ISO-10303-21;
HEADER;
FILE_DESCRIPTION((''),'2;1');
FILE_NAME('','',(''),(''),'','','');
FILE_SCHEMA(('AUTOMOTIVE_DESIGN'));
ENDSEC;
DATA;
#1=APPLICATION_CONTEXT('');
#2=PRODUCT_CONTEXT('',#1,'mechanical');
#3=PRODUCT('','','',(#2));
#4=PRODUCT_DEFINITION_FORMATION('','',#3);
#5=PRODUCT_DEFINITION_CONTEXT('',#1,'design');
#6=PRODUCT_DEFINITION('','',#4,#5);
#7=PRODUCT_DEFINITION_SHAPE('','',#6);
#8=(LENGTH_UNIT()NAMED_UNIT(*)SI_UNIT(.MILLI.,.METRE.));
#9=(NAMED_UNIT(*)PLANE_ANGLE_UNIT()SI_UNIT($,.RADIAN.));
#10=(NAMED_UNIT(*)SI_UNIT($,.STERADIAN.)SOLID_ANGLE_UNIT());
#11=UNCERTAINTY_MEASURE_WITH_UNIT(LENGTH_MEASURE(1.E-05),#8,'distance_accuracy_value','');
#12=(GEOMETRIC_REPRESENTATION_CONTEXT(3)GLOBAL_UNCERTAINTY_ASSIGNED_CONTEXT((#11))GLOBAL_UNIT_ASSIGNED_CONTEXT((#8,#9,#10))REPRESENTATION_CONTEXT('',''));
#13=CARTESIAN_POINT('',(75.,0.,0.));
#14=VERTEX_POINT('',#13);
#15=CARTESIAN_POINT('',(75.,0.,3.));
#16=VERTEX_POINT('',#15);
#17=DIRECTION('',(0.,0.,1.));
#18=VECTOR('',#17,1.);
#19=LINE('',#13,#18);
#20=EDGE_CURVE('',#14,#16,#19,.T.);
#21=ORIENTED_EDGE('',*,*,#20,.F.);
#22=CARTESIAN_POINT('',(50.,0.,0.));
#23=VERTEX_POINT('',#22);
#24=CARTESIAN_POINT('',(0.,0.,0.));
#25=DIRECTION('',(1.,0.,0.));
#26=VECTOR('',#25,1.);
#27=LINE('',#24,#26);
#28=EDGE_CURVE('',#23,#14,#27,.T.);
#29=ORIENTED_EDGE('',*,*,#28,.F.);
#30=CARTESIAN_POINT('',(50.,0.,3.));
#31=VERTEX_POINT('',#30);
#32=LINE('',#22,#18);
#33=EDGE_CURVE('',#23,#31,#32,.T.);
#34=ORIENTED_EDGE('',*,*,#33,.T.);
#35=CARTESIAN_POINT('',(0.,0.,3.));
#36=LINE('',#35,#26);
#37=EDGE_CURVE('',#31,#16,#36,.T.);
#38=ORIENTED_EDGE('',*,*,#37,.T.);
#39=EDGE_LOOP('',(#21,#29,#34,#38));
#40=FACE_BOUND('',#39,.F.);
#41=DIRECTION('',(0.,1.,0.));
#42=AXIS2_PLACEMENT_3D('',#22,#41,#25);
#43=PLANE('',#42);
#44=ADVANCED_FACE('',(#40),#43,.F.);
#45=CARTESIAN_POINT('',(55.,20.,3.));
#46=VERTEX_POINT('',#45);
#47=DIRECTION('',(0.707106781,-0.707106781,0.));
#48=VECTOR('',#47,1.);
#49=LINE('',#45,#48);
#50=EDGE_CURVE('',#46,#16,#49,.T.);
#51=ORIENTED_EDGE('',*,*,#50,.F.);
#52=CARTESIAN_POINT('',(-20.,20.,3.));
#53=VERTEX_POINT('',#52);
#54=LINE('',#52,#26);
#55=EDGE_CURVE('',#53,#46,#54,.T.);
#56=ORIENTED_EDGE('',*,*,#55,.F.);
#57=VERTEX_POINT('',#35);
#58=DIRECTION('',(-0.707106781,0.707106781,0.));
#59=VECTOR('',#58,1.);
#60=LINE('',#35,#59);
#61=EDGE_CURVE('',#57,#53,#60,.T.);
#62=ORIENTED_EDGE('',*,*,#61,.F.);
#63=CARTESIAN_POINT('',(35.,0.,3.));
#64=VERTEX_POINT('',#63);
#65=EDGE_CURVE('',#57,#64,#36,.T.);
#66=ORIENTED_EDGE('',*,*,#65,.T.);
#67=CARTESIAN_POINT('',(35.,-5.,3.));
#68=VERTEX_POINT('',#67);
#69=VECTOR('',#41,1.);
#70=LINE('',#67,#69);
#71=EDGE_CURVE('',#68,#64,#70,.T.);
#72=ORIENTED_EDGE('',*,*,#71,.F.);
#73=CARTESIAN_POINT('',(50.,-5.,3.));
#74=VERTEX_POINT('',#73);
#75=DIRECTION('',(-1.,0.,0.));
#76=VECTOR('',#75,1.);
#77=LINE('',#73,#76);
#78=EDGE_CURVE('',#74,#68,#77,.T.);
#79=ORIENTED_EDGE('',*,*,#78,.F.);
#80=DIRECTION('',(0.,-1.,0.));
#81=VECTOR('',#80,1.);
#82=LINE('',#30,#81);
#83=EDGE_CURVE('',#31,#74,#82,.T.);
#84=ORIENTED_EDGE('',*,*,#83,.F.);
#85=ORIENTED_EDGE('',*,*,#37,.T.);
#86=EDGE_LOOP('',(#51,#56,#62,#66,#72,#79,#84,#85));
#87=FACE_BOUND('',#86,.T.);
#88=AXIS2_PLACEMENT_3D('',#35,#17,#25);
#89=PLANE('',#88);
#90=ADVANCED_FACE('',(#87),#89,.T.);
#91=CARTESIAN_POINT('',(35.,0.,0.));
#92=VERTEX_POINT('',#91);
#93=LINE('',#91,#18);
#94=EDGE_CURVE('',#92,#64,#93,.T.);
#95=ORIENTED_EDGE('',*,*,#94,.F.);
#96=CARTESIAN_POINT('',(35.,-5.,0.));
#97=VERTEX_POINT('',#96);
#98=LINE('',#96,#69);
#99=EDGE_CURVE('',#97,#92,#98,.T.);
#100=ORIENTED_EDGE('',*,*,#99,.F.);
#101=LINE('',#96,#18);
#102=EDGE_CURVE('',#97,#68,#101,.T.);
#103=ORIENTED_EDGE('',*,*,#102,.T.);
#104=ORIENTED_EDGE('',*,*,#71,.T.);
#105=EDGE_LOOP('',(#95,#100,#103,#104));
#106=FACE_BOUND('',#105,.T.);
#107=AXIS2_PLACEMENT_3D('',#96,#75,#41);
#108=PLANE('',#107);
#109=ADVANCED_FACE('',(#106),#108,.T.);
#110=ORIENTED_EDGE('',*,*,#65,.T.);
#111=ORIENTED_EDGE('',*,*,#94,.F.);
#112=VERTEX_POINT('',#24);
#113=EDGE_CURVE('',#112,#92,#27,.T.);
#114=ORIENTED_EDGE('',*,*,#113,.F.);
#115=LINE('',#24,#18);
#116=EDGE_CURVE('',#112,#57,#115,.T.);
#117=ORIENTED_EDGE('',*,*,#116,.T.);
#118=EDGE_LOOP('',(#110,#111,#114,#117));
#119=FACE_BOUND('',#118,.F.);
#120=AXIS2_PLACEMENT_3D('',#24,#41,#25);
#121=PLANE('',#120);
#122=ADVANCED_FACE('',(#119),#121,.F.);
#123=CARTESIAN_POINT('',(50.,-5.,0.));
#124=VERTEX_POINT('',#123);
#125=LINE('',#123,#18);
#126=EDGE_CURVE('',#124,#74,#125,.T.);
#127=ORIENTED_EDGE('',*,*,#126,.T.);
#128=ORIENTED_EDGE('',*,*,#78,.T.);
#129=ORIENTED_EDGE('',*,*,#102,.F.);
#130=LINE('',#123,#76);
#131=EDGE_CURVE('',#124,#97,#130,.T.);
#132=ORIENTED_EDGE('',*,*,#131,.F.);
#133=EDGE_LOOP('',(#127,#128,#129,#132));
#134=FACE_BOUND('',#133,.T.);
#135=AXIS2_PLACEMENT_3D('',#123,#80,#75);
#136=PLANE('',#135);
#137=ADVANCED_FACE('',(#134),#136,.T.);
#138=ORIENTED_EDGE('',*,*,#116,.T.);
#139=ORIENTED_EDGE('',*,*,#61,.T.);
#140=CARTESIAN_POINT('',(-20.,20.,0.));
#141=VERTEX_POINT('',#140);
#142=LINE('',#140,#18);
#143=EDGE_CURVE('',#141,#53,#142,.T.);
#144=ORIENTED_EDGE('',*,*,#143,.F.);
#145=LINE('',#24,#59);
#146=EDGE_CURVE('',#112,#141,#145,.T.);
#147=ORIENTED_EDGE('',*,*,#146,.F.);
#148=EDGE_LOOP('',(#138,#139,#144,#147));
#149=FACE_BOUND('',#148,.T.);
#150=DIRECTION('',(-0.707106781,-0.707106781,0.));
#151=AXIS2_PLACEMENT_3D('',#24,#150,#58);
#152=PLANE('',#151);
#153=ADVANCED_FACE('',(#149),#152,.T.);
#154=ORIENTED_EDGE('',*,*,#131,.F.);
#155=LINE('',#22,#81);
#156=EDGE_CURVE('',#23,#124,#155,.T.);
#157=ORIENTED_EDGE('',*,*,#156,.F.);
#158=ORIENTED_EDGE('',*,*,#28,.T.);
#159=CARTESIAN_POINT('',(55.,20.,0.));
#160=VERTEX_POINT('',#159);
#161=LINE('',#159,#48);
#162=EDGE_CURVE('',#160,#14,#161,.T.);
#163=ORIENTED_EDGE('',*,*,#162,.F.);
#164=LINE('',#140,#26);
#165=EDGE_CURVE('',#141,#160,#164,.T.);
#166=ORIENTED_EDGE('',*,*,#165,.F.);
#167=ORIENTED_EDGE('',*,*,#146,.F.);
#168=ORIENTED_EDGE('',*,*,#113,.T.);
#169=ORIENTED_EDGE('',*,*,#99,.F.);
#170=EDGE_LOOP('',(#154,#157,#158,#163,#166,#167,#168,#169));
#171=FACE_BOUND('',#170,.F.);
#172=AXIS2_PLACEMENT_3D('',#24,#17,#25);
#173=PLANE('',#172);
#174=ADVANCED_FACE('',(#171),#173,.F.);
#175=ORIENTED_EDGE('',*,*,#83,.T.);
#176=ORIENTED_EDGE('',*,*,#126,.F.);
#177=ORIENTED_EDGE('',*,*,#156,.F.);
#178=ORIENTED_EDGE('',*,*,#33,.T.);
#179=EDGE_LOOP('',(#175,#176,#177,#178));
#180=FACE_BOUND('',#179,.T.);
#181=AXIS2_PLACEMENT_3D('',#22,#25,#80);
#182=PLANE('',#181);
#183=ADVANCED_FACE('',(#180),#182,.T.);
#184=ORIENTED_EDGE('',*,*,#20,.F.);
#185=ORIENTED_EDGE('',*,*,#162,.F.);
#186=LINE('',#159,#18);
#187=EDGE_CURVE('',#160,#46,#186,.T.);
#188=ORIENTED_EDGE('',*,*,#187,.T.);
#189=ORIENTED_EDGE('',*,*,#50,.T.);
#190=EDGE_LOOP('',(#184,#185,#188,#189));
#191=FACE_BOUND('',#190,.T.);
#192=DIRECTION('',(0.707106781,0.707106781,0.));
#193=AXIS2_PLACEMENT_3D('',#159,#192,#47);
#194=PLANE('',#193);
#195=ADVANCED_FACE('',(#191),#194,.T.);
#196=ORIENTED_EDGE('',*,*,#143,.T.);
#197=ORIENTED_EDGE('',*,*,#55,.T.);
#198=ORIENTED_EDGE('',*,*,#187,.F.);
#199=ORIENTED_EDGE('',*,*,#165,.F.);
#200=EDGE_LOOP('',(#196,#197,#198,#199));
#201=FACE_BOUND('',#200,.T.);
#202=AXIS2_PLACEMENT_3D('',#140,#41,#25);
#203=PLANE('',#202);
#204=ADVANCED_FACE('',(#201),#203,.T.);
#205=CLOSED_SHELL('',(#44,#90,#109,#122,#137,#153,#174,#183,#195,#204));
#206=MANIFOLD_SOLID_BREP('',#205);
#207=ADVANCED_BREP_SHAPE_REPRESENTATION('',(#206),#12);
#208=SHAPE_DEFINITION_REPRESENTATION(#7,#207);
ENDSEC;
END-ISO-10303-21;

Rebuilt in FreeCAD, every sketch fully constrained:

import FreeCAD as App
import Part
import Sketcher

V = App.Vector


def add_polygon(sketch, points):
    """Adds a closed chain of lines whose ends are joined by coincident constraints."""
    first, n = sketch.GeometryCount, len(points)
    for a, b in zip(points, points[1:] + points[:1]):
        sketch.addGeometry(Part.LineSegment(App.Vector(*a, 0), App.Vector(*b, 0)), False)
    for i in range(n):
        sketch.addConstraint(Sketcher.Constraint("Coincident", first + i, 2, first + (i + 1) % n, 1))

doc = App.newDocument("Part")
body = doc.addObject("PartDesign::Body", "Body")

# Sketch on XY plane
sketch1 = doc.addObject("Sketcher::SketchObject", "Sketch")
body.addObject(sketch1)
sketch1.AttachmentSupport = (doc.XY_Plane, [""])
sketch1.MapMode = "FlatFace"
add_polygon(sketch1, [(-20, 20), (0, 0), (35, 0), (35, -5), (50, -5), (50, 0), (75, 0), (55, 20)])  # lines 0-7
sketch1.addConstraint(Sketcher.Constraint("Horizontal", 1))
sketch1.addConstraint(Sketcher.Constraint("Vertical", 2))
sketch1.addConstraint(Sketcher.Constraint("Horizontal", 3))
sketch1.addConstraint(Sketcher.Constraint("Vertical", 4))
sketch1.addConstraint(Sketcher.Constraint("Horizontal", 5))
sketch1.addConstraint(Sketcher.Constraint("Horizontal", 7))
sketch1.addConstraint(Sketcher.Constraint("Coincident", 0, 2, -1, 1))
sketch1.addConstraint(Sketcher.Constraint("PointOnObject", 4, 2, -1))
sketch1.addConstraint(Sketcher.Constraint("Parallel", 0, 6))
sketch1.addConstraint(Sketcher.Constraint("DistanceX", 1, 1, 1, 2, 35.0))
sketch1.addConstraint(Sketcher.Constraint("DistanceX", 3, 1, 3, 2, 15.0))
sketch1.addConstraint(Sketcher.Constraint("DistanceX", 7, 2, 7, 1, 75.0))
sketch1.addConstraint(Sketcher.Constraint("DistanceY", 2, 2, 2, 1, 5.0))
sketch1.addConstraint(Sketcher.Constraint("DistanceY", -1, 1, 6, 2, 20.0))
sketch1.addConstraint(Sketcher.Constraint("DistanceX", 7, 2, -1, 1, 20.0))
pad1 = doc.addObject("PartDesign::Pad", "Pad")
body.addObject(pad1)
pad1.Profile = sketch1
pad1.Length = 3

doc.recompute()
